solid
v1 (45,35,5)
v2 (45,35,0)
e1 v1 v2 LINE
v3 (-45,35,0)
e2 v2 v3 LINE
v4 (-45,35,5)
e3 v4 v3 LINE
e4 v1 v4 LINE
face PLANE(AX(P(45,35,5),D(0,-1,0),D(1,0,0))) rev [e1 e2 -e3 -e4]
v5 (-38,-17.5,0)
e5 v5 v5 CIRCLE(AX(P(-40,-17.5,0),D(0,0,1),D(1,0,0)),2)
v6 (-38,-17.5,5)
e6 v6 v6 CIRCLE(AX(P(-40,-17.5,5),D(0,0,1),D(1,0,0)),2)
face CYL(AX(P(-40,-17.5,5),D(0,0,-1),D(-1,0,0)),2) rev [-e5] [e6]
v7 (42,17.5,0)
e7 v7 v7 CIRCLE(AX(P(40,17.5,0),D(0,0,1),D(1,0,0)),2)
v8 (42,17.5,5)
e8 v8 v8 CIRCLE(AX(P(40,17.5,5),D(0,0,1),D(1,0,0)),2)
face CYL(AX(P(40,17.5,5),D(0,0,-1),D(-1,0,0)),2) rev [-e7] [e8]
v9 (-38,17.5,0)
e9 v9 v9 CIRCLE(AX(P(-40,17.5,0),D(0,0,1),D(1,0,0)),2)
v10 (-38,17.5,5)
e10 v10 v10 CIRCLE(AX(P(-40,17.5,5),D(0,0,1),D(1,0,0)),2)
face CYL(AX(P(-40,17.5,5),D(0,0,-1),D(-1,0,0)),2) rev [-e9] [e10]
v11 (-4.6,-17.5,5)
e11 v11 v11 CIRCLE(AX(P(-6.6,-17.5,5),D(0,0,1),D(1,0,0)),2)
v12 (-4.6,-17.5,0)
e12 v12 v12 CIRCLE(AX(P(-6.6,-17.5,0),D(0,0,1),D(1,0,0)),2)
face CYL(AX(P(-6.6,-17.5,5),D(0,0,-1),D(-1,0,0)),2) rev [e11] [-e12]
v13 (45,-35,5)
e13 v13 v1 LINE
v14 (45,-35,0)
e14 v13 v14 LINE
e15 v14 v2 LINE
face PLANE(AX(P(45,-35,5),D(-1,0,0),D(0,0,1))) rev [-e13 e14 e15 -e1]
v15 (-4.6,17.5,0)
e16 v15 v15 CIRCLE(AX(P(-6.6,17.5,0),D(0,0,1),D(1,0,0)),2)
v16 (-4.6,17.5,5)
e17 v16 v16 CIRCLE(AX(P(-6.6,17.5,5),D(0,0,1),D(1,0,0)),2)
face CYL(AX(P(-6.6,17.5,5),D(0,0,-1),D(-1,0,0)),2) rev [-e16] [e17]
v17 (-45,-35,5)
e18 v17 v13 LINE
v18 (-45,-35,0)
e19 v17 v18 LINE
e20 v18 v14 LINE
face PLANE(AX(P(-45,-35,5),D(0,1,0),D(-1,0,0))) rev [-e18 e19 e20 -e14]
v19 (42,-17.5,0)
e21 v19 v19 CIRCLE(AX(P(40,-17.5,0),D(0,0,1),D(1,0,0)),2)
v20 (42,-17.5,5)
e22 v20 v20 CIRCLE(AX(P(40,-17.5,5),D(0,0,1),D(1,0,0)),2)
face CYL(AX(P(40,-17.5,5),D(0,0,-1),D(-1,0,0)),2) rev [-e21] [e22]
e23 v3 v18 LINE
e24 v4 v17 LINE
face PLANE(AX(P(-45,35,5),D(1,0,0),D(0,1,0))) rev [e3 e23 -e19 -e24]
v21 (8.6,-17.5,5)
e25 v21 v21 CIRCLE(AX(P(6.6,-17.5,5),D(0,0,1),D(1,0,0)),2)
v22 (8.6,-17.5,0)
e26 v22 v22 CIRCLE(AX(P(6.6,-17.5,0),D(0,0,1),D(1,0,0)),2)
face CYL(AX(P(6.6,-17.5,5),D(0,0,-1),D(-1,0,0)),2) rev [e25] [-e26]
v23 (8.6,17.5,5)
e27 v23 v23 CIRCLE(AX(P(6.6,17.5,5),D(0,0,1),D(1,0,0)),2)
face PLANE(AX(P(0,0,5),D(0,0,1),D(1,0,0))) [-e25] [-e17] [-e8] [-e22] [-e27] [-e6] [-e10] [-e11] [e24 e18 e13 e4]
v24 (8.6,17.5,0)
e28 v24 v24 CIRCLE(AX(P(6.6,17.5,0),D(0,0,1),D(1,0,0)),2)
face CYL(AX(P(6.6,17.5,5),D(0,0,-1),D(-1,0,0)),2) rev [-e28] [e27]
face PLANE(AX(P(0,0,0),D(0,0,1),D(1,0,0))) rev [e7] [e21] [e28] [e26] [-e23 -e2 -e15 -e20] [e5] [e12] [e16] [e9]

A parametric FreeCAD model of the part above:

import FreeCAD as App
import Part
import Sketcher

V = App.Vector
Q = App.Units.Quantity

doc = App.newDocument("Part")
body = doc.addObject("PartDesign::Body", "Body")

# Sketch on XY plane
sketch1 = body.newObject("Sketcher::SketchObject", "Sketch")
sketch1.AttachmentSupport = (doc.getObject("XY_Plane"), [""])
sketch1.MapMode = "FlatFace"
sketch1.addGeometry([
    Part.LineSegment(V(-45, 35, 0), V(-45, -35, 0)),  # 0
    Part.LineSegment(V(-45, -35, 0), V(45, -35, 0)),  # 1
    Part.LineSegment(V(45, -35, 0), V(45, 35, 0)),  # 2
    Part.LineSegment(V(45, 35, 0), V(-45, 35, 0)),  # 3
    Part.Circle(V(-40, -17.5, 0), V(0, 0, 1), 2),  # 4
    Part.Circle(V(-6.6, -17.5, 0), V(0, 0, 1), 2),  # 5
    Part.Circle(V(6.6, -17.5, 0), V(0, 0, 1), 2),  # 6
    Part.Circle(V(40, -17.5, 0), V(0, 0, 1), 2),  # 7
    Part.Circle(V(-40, 17.5, 0), V(0, 0, 1), 2),  # 8
    Part.Circle(V(-6.6, 17.5, 0), V(0, 0, 1), 2),  # 9
    Part.Circle(V(6.6, 17.5, 0), V(0, 0, 1), 2),  # 10
    Part.Circle(V(40, 17.5, 0), V(0, 0, 1), 2),  # 11
], False)
sketch1.addConstraint([
    Sketcher.Constraint("Coincident", 0, 2, 1, 1),
    Sketcher.Constraint("Coincident", 1, 2, 2, 1),
    Sketcher.Constraint("Coincident", 2, 2, 3, 1),
    Sketcher.Constraint("Coincident", 3, 2, 0, 1),
    Sketcher.Constraint("Vertical", 0),
    Sketcher.Constraint("Horizontal", 1),
    Sketcher.Constraint("Vertical", 2),
    Sketcher.Constraint("Horizontal", 3),
    Sketcher.Constraint("Equal", 4, 5),
    Sketcher.Constraint("Equal", 5, 6),
    Sketcher.Constraint("Equal", 6, 7),
    Sketcher.Constraint("Equal", 7, 8),
    Sketcher.Constraint("Equal", 8, 9),
    Sketcher.Constraint("Equal", 9, 10),
    Sketcher.Constraint("Equal", 10, 11),
    Sketcher.Constraint("Symmetric", 7, 3, 8, 3, -1, 1),
    Sketcher.Constraint("Symmetric", 6, 3, 9, 3, -1, 1),
    Sketcher.Constraint("Symmetric", 5, 3, 10, 3, -1, 1),
    Sketcher.Constraint("Symmetric", 4, 3, 11, 3, -1, 1),
    Sketcher.Constraint("Symmetric", 0, 2, 2, 2, -1, 1),
    Sketcher.Constraint("Symmetric", 5, 3, 6, 3, -2),
    Sketcher.Constraint("Symmetric", 4, 3, 7, 3, -2),
    Sketcher.Constraint("Horizontal", 4, 3, 5, 3),
    Sketcher.Constraint("Diameter", 4, Q("4 mm")),
    Sketcher.Constraint("DistanceX", 1, 1, 1, 2, Q("90 mm")),
    Sketcher.Constraint("DistanceY", 0, 2, 0, 1, Q("70 mm")),
    Sketcher.Constraint("DistanceX", 4, 3, -1, 1, Q("40 mm")),
    Sketcher.Constraint("DistanceY", 4, 3, 8, 3, Q("35 mm")),
    Sketcher.Constraint("DistanceX", 5, 3, -1, 1, Q("6.6 mm")),
])
pad1 = body.newObject("PartDesign::Pad", "Pad")
pad1.Profile = sketch1
pad1.Length = 5

doc.recompute()
